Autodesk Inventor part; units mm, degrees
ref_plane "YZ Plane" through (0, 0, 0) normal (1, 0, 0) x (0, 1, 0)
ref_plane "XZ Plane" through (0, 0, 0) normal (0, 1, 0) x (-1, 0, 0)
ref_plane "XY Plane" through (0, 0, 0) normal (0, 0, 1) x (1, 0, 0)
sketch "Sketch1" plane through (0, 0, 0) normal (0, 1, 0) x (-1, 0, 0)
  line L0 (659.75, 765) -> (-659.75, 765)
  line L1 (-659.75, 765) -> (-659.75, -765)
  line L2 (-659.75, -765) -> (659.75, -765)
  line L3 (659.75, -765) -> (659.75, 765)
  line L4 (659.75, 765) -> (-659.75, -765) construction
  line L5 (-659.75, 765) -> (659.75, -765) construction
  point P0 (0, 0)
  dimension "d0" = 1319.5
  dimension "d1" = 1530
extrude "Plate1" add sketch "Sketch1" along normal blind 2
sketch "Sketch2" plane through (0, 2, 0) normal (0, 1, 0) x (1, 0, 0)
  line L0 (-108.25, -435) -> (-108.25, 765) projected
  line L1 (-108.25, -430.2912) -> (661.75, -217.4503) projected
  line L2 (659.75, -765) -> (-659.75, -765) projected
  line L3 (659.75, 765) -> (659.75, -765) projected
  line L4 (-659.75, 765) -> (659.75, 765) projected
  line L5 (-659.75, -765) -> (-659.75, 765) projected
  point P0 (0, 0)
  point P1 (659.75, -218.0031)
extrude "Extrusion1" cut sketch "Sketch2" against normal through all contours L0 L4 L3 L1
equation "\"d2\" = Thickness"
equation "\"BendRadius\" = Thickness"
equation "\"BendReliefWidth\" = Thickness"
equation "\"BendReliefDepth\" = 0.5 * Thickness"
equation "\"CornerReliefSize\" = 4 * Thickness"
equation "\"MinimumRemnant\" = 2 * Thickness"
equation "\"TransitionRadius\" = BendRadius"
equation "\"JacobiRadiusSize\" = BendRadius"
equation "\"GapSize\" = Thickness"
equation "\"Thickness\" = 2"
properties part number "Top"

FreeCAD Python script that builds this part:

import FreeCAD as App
import Part
import Sketcher
from FreeCAD import Vector
Q = App.Units.Quantity


def add_polygon(sketch, points):
    """Adds a closed chain of lines whose ends are joined by coincident constraints."""
    first, n = sketch.GeometryCount, len(points)
    for a, b in zip(points, points[1:] + points[:1]):
        sketch.addGeometry(Part.LineSegment(App.Vector(*a, 0), App.Vector(*b, 0)), False)
    for i in range(n):
        sketch.addConstraint(Sketcher.Constraint("Coincident", first + i, 2, first + (i + 1) % n, 1))

doc = App.newDocument("Part")
params = doc.addObject("Spreadsheet::Sheet", "Params")
for row, (alias, value) in enumerate([
    ("sketch1_height", "1530 mm"),
    ("sketch1_width", "1319.5 mm"),
    ("pad1_length", "2 mm"),
    ("sketch2_width", "768 mm"),
    ("sketch2_length", "796.8 mm"),
], start=1):
    params.set(f"A{row}", alias)
    params.set(f"B{row}", "=" + value)
    params.setAlias(f"B{row}", alias)

body = doc.addObject("PartDesign::Body", "Body")

# Sketch on XZ plane
sketch1 = body.newObject("Sketcher::SketchObject", "Sketch")
sketch1.AttachmentSupport = (doc.getObject("XZ_Plane"), [""])
sketch1.MapMode = "FlatFace"
add_polygon(sketch1, [(-659.75, -765), (-659.75, 765), (659.75, 765), (659.75, -765)])  # lines 0-3
sketch1.addConstraint([
    Sketcher.Constraint("Vertical", 0),
    Sketcher.Constraint("Horizontal", 1),
    Sketcher.Constraint("Vertical", 2),
    Sketcher.Constraint("Horizontal", 3),
    Sketcher.Constraint("Symmetric", 0, 2, 2, 2, -1, 1),
    Sketcher.Constraint("DistanceY", 0, 1, 0, 2, Q("1530 mm")),
    Sketcher.Constraint("DistanceX", 1, 1, 1, 2, Q("1319.5 mm")),
])
sketch1.setExpression("Constraints[9]", "Params.sketch1_height")
sketch1.setExpression("Constraints[10]", "Params.sketch1_width")
pad1 = body.newObject("PartDesign::Pad", "Pad")
pad1.Profile = sketch1
pad1.setExpression("Length", "Params.pad1_length")
pad1.Reversed = True

# Sketch on XZ plane
sketch2 = body.newObject("Sketcher::SketchObject", "Sketch001")
sketch2.AttachmentSupport = (doc.getObject("XZ_Plane"), [""])
sketch2.MapMode = "FlatFace"
sketch2.AttachmentOffset = App.Placement(Vector(0, 0, -2), App.Rotation())
add_polygon(sketch2, [(-108.25, -765), (-108.25, 430.2912), (659.75, 218.003134), (659.75, -765)])  # lines 0-3
sketch2.addConstraint([
    Sketcher.Constraint("Vertical", 0),
    Sketcher.Constraint("Vertical", 2),
    Sketcher.Constraint("Horizontal", 3),
    Sketcher.Constraint("DistanceX", 3, 2, 3, 1, Q("768 mm")),
    Sketcher.Constraint("DistanceY", 2, 2, -1, 1, Q("765 mm")),
    Sketcher.Constraint("Distance", 1, Q("796.8 mm")),
    Sketcher.Constraint("DistanceX", 0, 2, -1, 1, Q("108.25 mm")),
    Sketcher.Constraint("DistanceY", 0, 1, 0, 2, Q("1195.2912 mm")),
])
sketch2.setExpression("Constraints[7]", "Params.sketch2_width")
sketch2.setExpression("Constraints[9]", "Params.sketch2_length")
pocket1 = body.newObject("PartDesign::Pocket", "Pocket")
pocket1.Profile = sketch2
pocket1.Type = "ThroughAll"
pocket1.Reversed = True

doc.recompute()
